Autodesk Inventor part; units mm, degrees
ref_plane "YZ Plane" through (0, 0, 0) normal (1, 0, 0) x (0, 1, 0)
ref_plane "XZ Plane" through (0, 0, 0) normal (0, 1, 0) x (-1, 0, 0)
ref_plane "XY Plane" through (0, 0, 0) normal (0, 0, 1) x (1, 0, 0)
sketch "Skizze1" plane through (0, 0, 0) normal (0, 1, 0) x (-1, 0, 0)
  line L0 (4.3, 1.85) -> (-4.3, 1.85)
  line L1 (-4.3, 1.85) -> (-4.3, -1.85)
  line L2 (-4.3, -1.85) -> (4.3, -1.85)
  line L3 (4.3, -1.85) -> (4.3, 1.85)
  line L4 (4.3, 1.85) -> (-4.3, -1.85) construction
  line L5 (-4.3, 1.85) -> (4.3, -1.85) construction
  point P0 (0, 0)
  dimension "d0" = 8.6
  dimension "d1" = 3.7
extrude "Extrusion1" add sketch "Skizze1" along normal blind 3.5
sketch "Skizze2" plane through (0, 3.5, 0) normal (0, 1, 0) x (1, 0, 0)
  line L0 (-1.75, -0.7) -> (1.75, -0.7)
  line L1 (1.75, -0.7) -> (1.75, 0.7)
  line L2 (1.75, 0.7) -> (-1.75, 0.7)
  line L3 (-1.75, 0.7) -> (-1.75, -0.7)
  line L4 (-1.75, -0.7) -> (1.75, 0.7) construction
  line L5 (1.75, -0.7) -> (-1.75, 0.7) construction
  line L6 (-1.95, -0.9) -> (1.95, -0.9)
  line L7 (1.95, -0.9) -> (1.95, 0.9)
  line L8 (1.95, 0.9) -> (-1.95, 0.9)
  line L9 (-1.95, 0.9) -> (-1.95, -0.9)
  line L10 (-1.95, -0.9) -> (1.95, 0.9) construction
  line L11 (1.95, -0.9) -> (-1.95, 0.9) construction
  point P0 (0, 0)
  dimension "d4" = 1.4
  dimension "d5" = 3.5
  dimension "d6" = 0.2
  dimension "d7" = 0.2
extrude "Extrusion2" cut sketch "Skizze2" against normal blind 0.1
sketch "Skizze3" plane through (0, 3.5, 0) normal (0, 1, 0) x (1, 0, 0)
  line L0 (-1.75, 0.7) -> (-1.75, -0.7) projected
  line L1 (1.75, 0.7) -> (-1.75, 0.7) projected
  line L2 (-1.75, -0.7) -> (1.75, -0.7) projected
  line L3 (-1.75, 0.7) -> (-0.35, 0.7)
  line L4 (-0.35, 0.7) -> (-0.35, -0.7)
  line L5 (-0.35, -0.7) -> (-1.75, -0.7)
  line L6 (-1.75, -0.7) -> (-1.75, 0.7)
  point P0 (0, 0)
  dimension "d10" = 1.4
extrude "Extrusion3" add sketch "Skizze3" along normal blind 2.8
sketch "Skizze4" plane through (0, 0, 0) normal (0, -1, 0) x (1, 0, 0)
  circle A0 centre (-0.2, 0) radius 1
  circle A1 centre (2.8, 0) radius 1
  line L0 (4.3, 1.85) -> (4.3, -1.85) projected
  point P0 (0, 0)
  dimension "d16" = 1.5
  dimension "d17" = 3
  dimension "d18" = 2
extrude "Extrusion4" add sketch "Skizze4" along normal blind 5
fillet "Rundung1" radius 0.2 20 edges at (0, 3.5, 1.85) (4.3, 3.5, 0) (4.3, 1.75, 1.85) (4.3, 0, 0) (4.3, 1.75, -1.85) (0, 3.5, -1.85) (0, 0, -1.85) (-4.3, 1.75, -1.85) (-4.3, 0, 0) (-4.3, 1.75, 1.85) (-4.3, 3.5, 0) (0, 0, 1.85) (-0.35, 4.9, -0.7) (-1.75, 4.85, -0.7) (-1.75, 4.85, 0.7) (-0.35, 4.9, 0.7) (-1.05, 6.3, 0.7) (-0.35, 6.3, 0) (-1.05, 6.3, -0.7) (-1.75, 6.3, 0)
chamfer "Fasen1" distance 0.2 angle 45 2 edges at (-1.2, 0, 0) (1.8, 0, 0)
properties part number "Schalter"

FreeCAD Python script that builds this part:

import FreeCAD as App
import Part
import Sketcher


def edges_at(feature, points):
    """Names of the edges that pass closest to the given points."""
    edges = feature.Shape.Edges
    near = lambda p: min(range(len(edges)), key=lambda i: edges[i].distToShape(Part.Vertex(*p))[0])
    return sorted({f"Edge{near(p) + 1}" for p in points})

doc = App.newDocument("Part")
body = doc.addObject("PartDesign::Body", "Body")

# Sketch on XZ plane
sketch1 = doc.addObject("Sketcher::SketchObject", "Sketch")
body.addObject(sketch1)
sketch1.AttachmentSupport = (doc.XZ_Plane, [""])
sketch1.MapMode = "FlatFace"
sketch1.addGeometry([
    Part.LineSegment(App.Vector(-4.3, -1.9, 0), App.Vector(-4.3, 1.9, 0)),
    Part.LineSegment(App.Vector(-4.3, 1.9, 0), App.Vector(4.3, 1.9, 0)),
    Part.LineSegment(App.Vector(4.3, 1.9, 0), App.Vector(4.3, -1.9, 0)),
    Part.LineSegment(App.Vector(4.3, -1.9, 0), App.Vector(-4.3, -1.9, 0)),
], False)
sketch1.addConstraint([
    Sketcher.Constraint("Coincident", 0, 2, 1, 1),
    Sketcher.Constraint("Coincident", 1, 2, 2, 1),
    Sketcher.Constraint("Coincident", 2, 2, 3, 1),
    Sketcher.Constraint("Coincident", 3, 2, 0, 1),
    Sketcher.Constraint("Vertical", 0),
    Sketcher.Constraint("Horizontal", 1),
    Sketcher.Constraint("Vertical", 2),
    Sketcher.Constraint("Horizontal", 3),
    Sketcher.Constraint("Symmetric", 0, 2, 2, 2, -1, 1),
    Sketcher.Constraint("DistanceX", 1, 1, 1, 2, 8.6),
    Sketcher.Constraint("DistanceY", 0, 1, 0, 2, 3.7),
])
pad1 = doc.addObject("PartDesign::Pad", "Pad")
body.addObject(pad1)
pad1.Profile = sketch1
pad1.Length = 3.5
pad1.Reversed = True

# Sketch on XZ plane
sketch2 = doc.addObject("Sketcher::SketchObject", "Sketch001")
body.addObject(sketch2)
sketch2.AttachmentSupport = (doc.XZ_Plane, [""])
sketch2.MapMode = "FlatFace"
sketch2.AttachmentOffset = App.Placement(App.Vector(0, 0, -3.5), App.Rotation())
sketch2.addGeometry([
    Part.LineSegment(App.Vector(-1.9, -0.9, 0), App.Vector(-1.9, 0.9, 0)),  # 0
    Part.LineSegment(App.Vector(-1.9, 0.9, 0), App.Vector(1.9, 0.9, 0)),  # 1
    Part.LineSegment(App.Vector(1.9, 0.9, 0), App.Vector(1.9, -0.9, 0)),  # 2
    Part.LineSegment(App.Vector(1.9, -0.9, 0), App.Vector(-1.9, -0.9, 0)),  # 3
    Part.LineSegment(App.Vector(1.8, 0.7, 0), App.Vector(-1.8, 0.7, 0)),  # 4
    Part.LineSegment(App.Vector(-1.8, 0.7, 0), App.Vector(-1.8, -0.7, 0)),  # 5
    Part.LineSegment(App.Vector(-1.8, -0.7, 0), App.Vector(1.8, -0.7, 0)),  # 6
    Part.LineSegment(App.Vector(1.8, -0.7, 0), App.Vector(1.8, 0.7, 0)),  # 7
], False)
sketch2.addConstraint([
    Sketcher.Constraint("Coincident", 0, 2, 1, 1),
    Sketcher.Constraint("Coincident", 1, 2, 2, 1),
    Sketcher.Constraint("Coincident", 2, 2, 3, 1),
    Sketcher.Constraint("Coincident", 3, 2, 0, 1),
    Sketcher.Constraint("Coincident", 4, 2, 5, 1),
    Sketcher.Constraint("Coincident", 5, 2, 6, 1),
    Sketcher.Constraint("Coincident", 6, 2, 7, 1),
    Sketcher.Constraint("Coincident", 7, 2, 4, 1),
    Sketcher.Constraint("Vertical", 0),
    Sketcher.Constraint("Horizontal", 1),
    Sketcher.Constraint("Vertical", 2),
    Sketcher.Constraint("Horizontal", 3),
    Sketcher.Constraint("Horizontal", 4),
    Sketcher.Constraint("Vertical", 5),
    Sketcher.Constraint("Horizontal", 6),
    Sketcher.Constraint("Vertical", 7),
    Sketcher.Constraint("Symmetric", 0, 2, 2, 2, -1, 1),
    Sketcher.Constraint("Symmetric", 4, 2, 6, 2, -1, 1),
    Sketcher.Constraint("DistanceX", 4, 2, 4, 1, 3.5),
    Sketcher.Constraint("DistanceY", 5, 2, 5, 1, 1.4),
    Sketcher.Constraint("DistanceX", 0, 2, 4, 2, 0.2),
    Sketcher.Constraint("DistanceY", 4, 2, 0, 2, 0.2),
])
pocket1 = doc.addObject("PartDesign::Pocket", "Pocket")
body.addObject(pocket1)
pocket1.Profile = sketch2
pocket1.Length = 0.1
pocket1.Reversed = True

# Sketch on XZ plane
sketch3 = doc.addObject("Sketcher::SketchObject", "Sketch002")
body.addObject(sketch3)
sketch3.AttachmentSupport = (doc.XZ_Plane, [""])
sketch3.MapMode = "FlatFace"
sketch3.AttachmentOffset = App.Placement(App.Vector(0, 0, -3.5), App.Rotation())
sketch3.addGeometry([
    Part.LineSegment(App.Vector(-0.3, -0.7, 0), App.Vector(-1.8, -0.7, 0)),
    Part.LineSegment(App.Vector(-1.8, -0.7, 0), App.Vector(-1.8, 0.7, 0)),
    Part.LineSegment(App.Vector(-1.8, 0.7, 0), App.Vector(-0.3, 0.7, 0)),
    Part.LineSegment(App.Vector(-0.3, 0.7, 0), App.Vector(-0.3, -0.7, 0)),
], False)
sketch3.addConstraint([
    Sketcher.Constraint("Coincident", 0, 2, 1, 1),
    Sketcher.Constraint("Coincident", 1, 2, 2, 1),
    Sketcher.Constraint("Coincident", 2, 2, 3, 1),
    Sketcher.Constraint("Coincident", 3, 2, 0, 1),
    Sketcher.Constraint("Horizontal", 0),
    Sketcher.Constraint("Vertical", 1),
    Sketcher.Constraint("Horizontal", 2),
    Sketcher.Constraint("Vertical", 3),
    Sketcher.Constraint("Equal", 2, 1),
    Sketcher.Constraint("DistanceX", 0, 2, 0, 1, 1.4),
    Sketcher.Constraint("DistanceY", 0, 2, -1, 1, 0.7),
    Sketcher.Constraint("DistanceX", 0, 2, -1, 1, 1.75),
])
pad2 = doc.addObject("PartDesign::Pad", "Pad001")
body.addObject(pad2)
pad2.Profile = sketch3
pad2.Length = 2.8
pad2.Reversed = True

# Sketch on XZ plane
sketch4 = doc.addObject("Sketcher::SketchObject", "Sketch003")
body.addObject(sketch4)
sketch4.AttachmentSupport = (doc.XZ_Plane, [""])
sketch4.MapMode = "FlatFace"
sketch4.addGeometry([
    Part.Circle(App.Vector(-0.2, 0, 0), App.Vector(0, 0, 1), 1),
    Part.Circle(App.Vector(2.8, 0, 0), App.Vector(0, 0, 1), 1),
], False)
sketch4.addConstraint([
    Sketcher.Constraint("Equal", 0, 1),
    Sketcher.Constraint("PointOnObject", 0, 3, -1),
    Sketcher.Constraint("PointOnObject", 1, 3, -1),
    Sketcher.Constraint("Diameter", 0, 2.0),
    Sketcher.Constraint("DistanceX", 0, 3, 1, 3, 3.0),
    Sketcher.Constraint("DistanceX", 0, 3, -1, 1, 0.2),
])
pad3 = doc.addObject("PartDesign::Pad", "Pad002")
body.addObject(pad3)
pad3.Profile = sketch4
pad3.Length = 5
doc.recompute()

fillet = doc.addObject("PartDesign::Fillet", "Fillet")
body.addObject(fillet)
fillet.Base = (pad3, edges_at(pad3, [
    (0, 3.5, 1.85),
    (4.3, 3.5, 0),
    (4.3, 1.75, 1.85),
    (4.3, 0, 0),
    (4.3, 1.75, -1.85),
    (0, 3.5, -1.85),
    (0, 0, -1.85),
    (-4.3, 1.75, -1.85),
    (-4.3, 0, 0),
    (-4.3, 1.75, 1.85),
    (-4.3, 3.5, 0),
    (0, 0, 1.85),
    (-0.35, 4.9, -0.7),
    (-1.75, 4.85, -0.7),
    (-1.75, 4.85, 0.7),
    (-0.35, 4.9, 0.7),
    (-1.05, 6.3, 0.7),
    (-0.35, 6.3, 0),
    (-1.05, 6.3, -0.7),
    (-1.75, 6.3, 0),
]))
fillet.Radius = 0.2
doc.recompute()

chamfer = doc.addObject("PartDesign::Chamfer", "Chamfer")
body.addObject(chamfer)
chamfer.Base = (fillet, edges_at(fillet, [(-1.2, 0, 0), (1.8, 0, 0)]))
chamfer.Size = 0.2

doc.recompute()
